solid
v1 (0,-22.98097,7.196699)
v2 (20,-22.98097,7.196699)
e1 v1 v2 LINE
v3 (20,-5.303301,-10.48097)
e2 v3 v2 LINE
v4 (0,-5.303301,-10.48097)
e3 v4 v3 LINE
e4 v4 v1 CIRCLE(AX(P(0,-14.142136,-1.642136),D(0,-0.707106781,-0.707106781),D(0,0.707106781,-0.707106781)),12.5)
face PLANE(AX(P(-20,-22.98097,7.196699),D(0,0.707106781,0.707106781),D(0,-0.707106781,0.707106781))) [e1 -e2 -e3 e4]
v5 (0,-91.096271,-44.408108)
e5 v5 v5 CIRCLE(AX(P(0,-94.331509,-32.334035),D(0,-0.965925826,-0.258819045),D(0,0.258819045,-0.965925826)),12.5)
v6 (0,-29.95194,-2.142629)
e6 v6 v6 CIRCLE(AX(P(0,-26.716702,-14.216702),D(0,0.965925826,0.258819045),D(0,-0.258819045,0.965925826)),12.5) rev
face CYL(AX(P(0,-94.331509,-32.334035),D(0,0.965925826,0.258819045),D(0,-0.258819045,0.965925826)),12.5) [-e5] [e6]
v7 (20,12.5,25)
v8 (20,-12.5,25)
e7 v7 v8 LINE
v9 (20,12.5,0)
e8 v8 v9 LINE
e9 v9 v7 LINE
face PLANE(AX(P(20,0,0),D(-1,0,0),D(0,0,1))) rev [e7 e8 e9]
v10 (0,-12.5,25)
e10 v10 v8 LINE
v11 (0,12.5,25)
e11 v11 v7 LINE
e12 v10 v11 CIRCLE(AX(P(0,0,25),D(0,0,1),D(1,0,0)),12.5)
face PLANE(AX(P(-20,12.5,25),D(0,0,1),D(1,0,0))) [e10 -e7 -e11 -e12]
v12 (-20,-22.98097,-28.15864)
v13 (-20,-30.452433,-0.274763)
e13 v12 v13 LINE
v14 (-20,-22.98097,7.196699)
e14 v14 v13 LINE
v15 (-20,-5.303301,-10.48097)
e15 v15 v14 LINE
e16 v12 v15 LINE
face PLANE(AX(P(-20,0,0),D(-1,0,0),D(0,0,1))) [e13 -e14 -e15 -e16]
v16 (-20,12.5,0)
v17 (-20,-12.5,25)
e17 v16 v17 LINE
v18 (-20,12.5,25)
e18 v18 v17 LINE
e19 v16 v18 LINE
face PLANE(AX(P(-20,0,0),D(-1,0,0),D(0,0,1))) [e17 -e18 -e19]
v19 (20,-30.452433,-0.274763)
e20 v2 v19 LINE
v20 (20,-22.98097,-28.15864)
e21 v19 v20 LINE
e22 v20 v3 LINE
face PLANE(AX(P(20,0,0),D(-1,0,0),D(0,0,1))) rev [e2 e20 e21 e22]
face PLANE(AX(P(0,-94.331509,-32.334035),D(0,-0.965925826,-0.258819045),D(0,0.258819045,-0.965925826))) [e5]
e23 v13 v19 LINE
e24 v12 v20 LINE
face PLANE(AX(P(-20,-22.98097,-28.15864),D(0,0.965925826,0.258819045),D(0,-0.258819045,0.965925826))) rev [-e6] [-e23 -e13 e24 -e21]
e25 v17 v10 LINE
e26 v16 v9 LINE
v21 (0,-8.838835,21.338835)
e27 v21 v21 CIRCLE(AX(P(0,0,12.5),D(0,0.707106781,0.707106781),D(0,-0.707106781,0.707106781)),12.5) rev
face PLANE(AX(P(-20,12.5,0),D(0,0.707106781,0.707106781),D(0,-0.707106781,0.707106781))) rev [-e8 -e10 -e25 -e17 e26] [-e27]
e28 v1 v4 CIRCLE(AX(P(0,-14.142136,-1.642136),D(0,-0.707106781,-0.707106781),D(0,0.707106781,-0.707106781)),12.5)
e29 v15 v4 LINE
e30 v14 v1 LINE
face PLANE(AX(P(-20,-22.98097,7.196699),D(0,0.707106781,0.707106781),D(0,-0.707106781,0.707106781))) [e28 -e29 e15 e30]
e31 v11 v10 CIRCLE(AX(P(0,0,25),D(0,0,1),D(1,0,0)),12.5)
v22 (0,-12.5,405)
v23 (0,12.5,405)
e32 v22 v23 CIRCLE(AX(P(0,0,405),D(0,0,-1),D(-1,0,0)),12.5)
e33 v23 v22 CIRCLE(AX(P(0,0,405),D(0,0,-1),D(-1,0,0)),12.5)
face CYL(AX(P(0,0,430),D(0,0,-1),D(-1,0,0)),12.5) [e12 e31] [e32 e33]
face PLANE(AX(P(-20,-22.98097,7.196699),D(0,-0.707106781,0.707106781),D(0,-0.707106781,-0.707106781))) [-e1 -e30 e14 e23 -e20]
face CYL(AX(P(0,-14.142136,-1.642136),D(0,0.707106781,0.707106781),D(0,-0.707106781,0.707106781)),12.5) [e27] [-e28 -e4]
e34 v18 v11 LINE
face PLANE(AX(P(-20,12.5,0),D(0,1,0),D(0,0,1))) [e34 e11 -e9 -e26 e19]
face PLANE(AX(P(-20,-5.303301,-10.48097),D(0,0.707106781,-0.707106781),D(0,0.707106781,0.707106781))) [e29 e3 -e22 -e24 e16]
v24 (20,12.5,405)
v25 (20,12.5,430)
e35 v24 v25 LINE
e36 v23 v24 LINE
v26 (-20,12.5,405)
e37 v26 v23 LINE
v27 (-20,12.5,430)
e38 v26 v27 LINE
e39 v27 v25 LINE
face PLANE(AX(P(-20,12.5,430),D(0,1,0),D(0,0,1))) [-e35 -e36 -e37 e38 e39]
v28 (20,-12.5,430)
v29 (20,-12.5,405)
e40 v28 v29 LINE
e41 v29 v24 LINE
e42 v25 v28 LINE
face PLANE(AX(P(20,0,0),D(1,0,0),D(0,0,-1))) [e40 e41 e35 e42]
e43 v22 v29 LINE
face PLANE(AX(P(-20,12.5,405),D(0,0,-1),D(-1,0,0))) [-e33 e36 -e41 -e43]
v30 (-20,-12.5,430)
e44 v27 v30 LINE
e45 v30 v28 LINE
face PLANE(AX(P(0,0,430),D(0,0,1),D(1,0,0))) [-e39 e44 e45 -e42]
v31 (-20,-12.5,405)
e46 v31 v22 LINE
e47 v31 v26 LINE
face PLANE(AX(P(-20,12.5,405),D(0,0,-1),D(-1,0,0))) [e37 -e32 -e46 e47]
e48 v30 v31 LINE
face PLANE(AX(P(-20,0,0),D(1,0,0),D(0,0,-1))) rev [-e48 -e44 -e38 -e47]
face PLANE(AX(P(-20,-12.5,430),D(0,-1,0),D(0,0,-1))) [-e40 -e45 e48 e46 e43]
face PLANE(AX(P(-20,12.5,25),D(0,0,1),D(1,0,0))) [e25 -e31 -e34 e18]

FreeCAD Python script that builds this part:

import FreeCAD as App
import Part
import Sketcher
from FreeCAD import Vector
Q = App.Units.Quantity


def add_polygon(sketch, points):
    """Adds a closed chain of lines whose ends are joined by coincident constraints."""
    first, n = sketch.GeometryCount, len(points)
    for a, b in zip(points, points[1:] + points[:1]):
        sketch.addGeometry(Part.LineSegment(App.Vector(*a, 0), App.Vector(*b, 0)), False)
    for i in range(n):
        sketch.addConstraint(Sketcher.Constraint("Coincident", first + i, 2, first + (i + 1) % n, 1))

doc = App.newDocument("Part")
params = doc.addObject("Spreadsheet::Sheet", "Params")
for row, (alias, value) in enumerate([
    ("sketch1_diameter", "25 mm"),
    ("pad1_length", "430 mm"),
    ("sketch2_width", "25 mm"),
    ("pad2_length", "20 mm"),
    ("pad2_length2", "20 mm"),
    ("sketch3_width", "25 mm"),
    ("sketch4_diameter", "25 mm"),
    ("pad3_length", "20 mm"),
    ("sketch5_length", "25 mm"),
    ("pad4_length", "40 mm"),
    ("sketch6_length", "25 mm"),
    ("sketch7_diameter", "25 mm"),
    ("pad5_length", "70 mm"),
], start=1):
    params.set(f"A{row}", alias)
    params.set(f"B{row}", "=" + value)
    params.setAlias(f"B{row}", alias)

body = doc.addObject("PartDesign::Body", "Body")

# Sketch on XY plane
sketch1 = body.newObject("Sketcher::SketchObject", "Sketch")
sketch1.AttachmentSupport = (doc.getObject("XY_Plane"), [""])
sketch1.MapMode = "FlatFace"
sketch1.addGeometry(Part.Circle(Vector(0, 0, 0), Vector(0, 0, 1), 12), False)
sketch1.addConstraint(Sketcher.Constraint("Coincident", 0, 3, -1, 1))
sketch1.addConstraint(Sketcher.Constraint("Diameter", 0, Q("25 mm")))
sketch1.setExpression("Constraints[1]", "Params.sketch1_diameter")
pad1 = body.newObject("PartDesign::Pad", "Pad")
pad1.Profile = sketch1
pad1.setExpression("Length", "Params.pad1_length")

# Sketch on YZ plane
sketch2 = body.newObject("Sketcher::SketchObject", "Sketch001")
sketch2.AttachmentSupport = (doc.getObject("YZ_Plane"), [""])
sketch2.MapMode = "FlatFace"
add_polygon(sketch2, [(12, 430), (-12, 430), (-12, 405), (12, 405)])  # lines 0-3
add_polygon(sketch2, [(12, 25), (-12, 25), (-12, 0), (12, 0)])  # lines 4-7
sketch2.addConstraint(Sketcher.Constraint("Horizontal", 0))
sketch2.addConstraint(Sketcher.Constraint("Vertical", 1))
sketch2.addConstraint(Sketcher.Constraint("Horizontal", 2))
sketch2.addConstraint(Sketcher.Constraint("Vertical", 3))
sketch2.addConstraint(Sketcher.Constraint("Horizontal", 4))
sketch2.addConstraint(Sketcher.Constraint("Vertical", 5))
sketch2.addConstraint(Sketcher.Constraint("Horizontal", 6))
sketch2.addConstraint(Sketcher.Constraint("Vertical", 7))
sketch2.addConstraint(Sketcher.Constraint("Symmetric", 5, 2, 6, 2, -1, 1))
sketch2.addConstraint(Sketcher.Constraint("Vertical", 1, 2, 4, 2))
sketch2.addConstraint(Sketcher.Constraint("Vertical", 3, 2, 6, 2))
sketch2.addConstraint(Sketcher.Constraint("Equal", 6, 1))
sketch2.addConstraint(Sketcher.Constraint("Equal", 3, 5))
sketch2.addConstraint(Sketcher.Constraint("DistanceX", 0, 2, 0, 1, Q("25 mm")))
sketch2.addConstraint(Sketcher.Constraint("DistanceY", -1, 1, 0, 2, Q("430 mm")))
sketch2.setExpression("Constraints[21]", "Params.sketch2_width")
pad2 = body.newObject("PartDesign::Pad", "Pad001")
pad2.Profile = sketch2
pad2.Type = "TwoLengths"
pad2.setExpression("Length", "Params.pad2_length")
pad2.setExpression("Length2", "Params.pad2_length2")

# Sketch on YZ plane
sketch3 = body.newObject("Sketcher::SketchObject", "Sketch002")
sketch3.AttachmentSupport = (doc.getObject("YZ_Plane"), [""])
sketch3.MapMode = "FlatFace"
sketch3.AttachmentOffset = App.Placement(Vector(0, 0, 20), App.Rotation())
add_polygon(sketch3, [(12, 0), (-12, 25), (-12, 0)])  # lines 0-2
sketch3.addConstraint(Sketcher.Constraint("Vertical", 1))
sketch3.addConstraint(Sketcher.Constraint("Horizontal", 2))
sketch3.addConstraint(Sketcher.Constraint("Symmetric", 1, 2, 2, 2, -1, 1))
sketch3.addConstraint(Sketcher.Constraint("Equal", 2, 1))
sketch3.addConstraint(Sketcher.Constraint("DistanceX", 2, 1, 2, 2, Q("25 mm")))
sketch3.setExpression("Constraints[7]", "Params.sketch3_width")
pocket1 = body.newObject("PartDesign::Pocket", "Pocket")
pocket1.Profile = sketch3
pocket1.Type = "ThroughAll"
pocket1.Midplane = True

# Sketch on an angled plane
sketch4 = body.newObject("Sketcher::SketchObject", "Sketch003")
sketch4.Placement = App.Placement(Vector(0, 6.25, 6.25), App.Rotation(Vector(-1, 0, 0), Vector(0, 0.707106781, -0.707106781), Vector(0, -0.707106781, -0.707106781), "ZXY"))
sketch4.addGeometry(Part.Circle(Vector(0, -9, 0), Vector(0, 0, 1), 12), False)
sketch4.addConstraint(Sketcher.Constraint("PointOnObject", 0, 3, -2))
sketch4.addConstraint(Sketcher.Constraint("Diameter", 0, Q("25 mm")))
sketch4.addConstraint(Sketcher.Constraint("DistanceY", 0, 3, -1, 1, Q("8.838835 mm")))
sketch4.setExpression("Constraints[1]", "Params.sketch4_diameter")
pad3 = body.newObject("PartDesign::Pad", "Pad002")
pad3.Profile = sketch4
pad3.setExpression("Length", "Params.pad3_length")

# Sketch on YZ plane
sketch5 = body.newObject("Sketcher::SketchObject", "Sketch004")
sketch5.AttachmentSupport = (doc.getObject("YZ_Plane"), [""])
sketch5.MapMode = "FlatFace"
sketch5.AttachmentOffset = App.Placement(Vector(0, 0, 20), App.Rotation())
add_polygon(sketch5, [(-5, -10), (-23, 7), (-41, -10), (-23, -28)])  # lines 0-3
sketch5.addConstraint(Sketcher.Constraint("Perpendicular", 0, 1))
sketch5.addConstraint(Sketcher.Constraint("Perpendicular", 1, 2))
sketch5.addConstraint(Sketcher.Constraint("Perpendicular", 2, 3))
sketch5.addConstraint(Sketcher.Constraint("Horizontal", 1, 2, 3, 2))
sketch5.addConstraint(Sketcher.Constraint("Vertical", 0, 2, 2, 2))
sketch5.addConstraint(Sketcher.Constraint("Distance", 0, Q("25 mm")))
sketch5.addConstraint(Sketcher.Constraint("DistanceY", -1, 1, 0, 2, Q("7.196699 mm")))
sketch5.addConstraint(Sketcher.Constraint("DistanceX", 3, 2, -1, 1, Q("5.303301 mm")))
sketch5.setExpression("Constraints[9]", "Params.sketch5_length")
pad4 = body.newObject("PartDesign::Pad", "Pad003")
pad4.Profile = sketch5
pad4.setExpression("Length", "Params.pad4_length")
pad4.Reversed = True

# Sketch on YZ plane
sketch6 = body.newObject("Sketcher::SketchObject", "Sketch005")
sketch6.AttachmentSupport = (doc.getObject("YZ_Plane"), [""])
sketch6.MapMode = "FlatFace"
sketch6.AttachmentOffset = App.Placement(Vector(0, 0, 20), App.Rotation())
add_polygon(sketch6, [(-23, -28), (-30, 0), (-41, -10)])  # lines 0-2
sketch6.addConstraint(Sketcher.Constraint("Perpendicular", 1, 2))
sketch6.addConstraint(Sketcher.Constraint("Angle", 0, Q("105 deg")))
sketch6.addConstraint(Sketcher.Constraint("Angle", 1, Q("-135 deg")))
sketch6.addConstraint(Sketcher.Constraint("Distance", 2, Q("25 mm")))
sketch6.addConstraint(Sketcher.Constraint("DistanceX", 1, 2, -1, 1, Q("40.65864 mm")))
sketch6.addConstraint(Sketcher.Constraint("DistanceY", 1, 2, -1, 1, Q("10.48097 mm")))
sketch6.setExpression("Constraints[6]", "Params.sketch6_length")
pocket2 = body.newObject("PartDesign::Pocket", "Pocket001")
pocket2.Profile = sketch6
pocket2.Type = "ThroughAll"
pocket2.Midplane = True

# Sketch on an angled plane
sketch7 = body.newObject("Sketcher::SketchObject", "Sketch006")
sketch7.Placement = App.Placement(Vector(0, -28.481197, -7.631514), App.Rotation(Vector(1, 0, 0), Vector(0, -0.258819045, 0.965925826), Vector(0, -0.965925826, -0.258819045), "ZXY"))
sketch7.addGeometry(Part.Circle(Vector(0, -7, 0), Vector(0, 0, 1), 12), False)
sketch7.addConstraint(Sketcher.Constraint("PointOnObject", 0, 3, -2))
sketch7.addConstraint(Sketcher.Constraint("Diameter", 0, Q("25 mm")))
sketch7.addConstraint(Sketcher.Constraint("DistanceY", 0, 3, -1, 1, Q("6.817488 mm")))
sketch7.setExpression("Constraints[1]", "Params.sketch7_diameter")
pad5 = body.newObject("PartDesign::Pad", "Pad004")
pad5.Profile = sketch7
pad5.setExpression("Length", "Params.pad5_length")

doc.recompute()
